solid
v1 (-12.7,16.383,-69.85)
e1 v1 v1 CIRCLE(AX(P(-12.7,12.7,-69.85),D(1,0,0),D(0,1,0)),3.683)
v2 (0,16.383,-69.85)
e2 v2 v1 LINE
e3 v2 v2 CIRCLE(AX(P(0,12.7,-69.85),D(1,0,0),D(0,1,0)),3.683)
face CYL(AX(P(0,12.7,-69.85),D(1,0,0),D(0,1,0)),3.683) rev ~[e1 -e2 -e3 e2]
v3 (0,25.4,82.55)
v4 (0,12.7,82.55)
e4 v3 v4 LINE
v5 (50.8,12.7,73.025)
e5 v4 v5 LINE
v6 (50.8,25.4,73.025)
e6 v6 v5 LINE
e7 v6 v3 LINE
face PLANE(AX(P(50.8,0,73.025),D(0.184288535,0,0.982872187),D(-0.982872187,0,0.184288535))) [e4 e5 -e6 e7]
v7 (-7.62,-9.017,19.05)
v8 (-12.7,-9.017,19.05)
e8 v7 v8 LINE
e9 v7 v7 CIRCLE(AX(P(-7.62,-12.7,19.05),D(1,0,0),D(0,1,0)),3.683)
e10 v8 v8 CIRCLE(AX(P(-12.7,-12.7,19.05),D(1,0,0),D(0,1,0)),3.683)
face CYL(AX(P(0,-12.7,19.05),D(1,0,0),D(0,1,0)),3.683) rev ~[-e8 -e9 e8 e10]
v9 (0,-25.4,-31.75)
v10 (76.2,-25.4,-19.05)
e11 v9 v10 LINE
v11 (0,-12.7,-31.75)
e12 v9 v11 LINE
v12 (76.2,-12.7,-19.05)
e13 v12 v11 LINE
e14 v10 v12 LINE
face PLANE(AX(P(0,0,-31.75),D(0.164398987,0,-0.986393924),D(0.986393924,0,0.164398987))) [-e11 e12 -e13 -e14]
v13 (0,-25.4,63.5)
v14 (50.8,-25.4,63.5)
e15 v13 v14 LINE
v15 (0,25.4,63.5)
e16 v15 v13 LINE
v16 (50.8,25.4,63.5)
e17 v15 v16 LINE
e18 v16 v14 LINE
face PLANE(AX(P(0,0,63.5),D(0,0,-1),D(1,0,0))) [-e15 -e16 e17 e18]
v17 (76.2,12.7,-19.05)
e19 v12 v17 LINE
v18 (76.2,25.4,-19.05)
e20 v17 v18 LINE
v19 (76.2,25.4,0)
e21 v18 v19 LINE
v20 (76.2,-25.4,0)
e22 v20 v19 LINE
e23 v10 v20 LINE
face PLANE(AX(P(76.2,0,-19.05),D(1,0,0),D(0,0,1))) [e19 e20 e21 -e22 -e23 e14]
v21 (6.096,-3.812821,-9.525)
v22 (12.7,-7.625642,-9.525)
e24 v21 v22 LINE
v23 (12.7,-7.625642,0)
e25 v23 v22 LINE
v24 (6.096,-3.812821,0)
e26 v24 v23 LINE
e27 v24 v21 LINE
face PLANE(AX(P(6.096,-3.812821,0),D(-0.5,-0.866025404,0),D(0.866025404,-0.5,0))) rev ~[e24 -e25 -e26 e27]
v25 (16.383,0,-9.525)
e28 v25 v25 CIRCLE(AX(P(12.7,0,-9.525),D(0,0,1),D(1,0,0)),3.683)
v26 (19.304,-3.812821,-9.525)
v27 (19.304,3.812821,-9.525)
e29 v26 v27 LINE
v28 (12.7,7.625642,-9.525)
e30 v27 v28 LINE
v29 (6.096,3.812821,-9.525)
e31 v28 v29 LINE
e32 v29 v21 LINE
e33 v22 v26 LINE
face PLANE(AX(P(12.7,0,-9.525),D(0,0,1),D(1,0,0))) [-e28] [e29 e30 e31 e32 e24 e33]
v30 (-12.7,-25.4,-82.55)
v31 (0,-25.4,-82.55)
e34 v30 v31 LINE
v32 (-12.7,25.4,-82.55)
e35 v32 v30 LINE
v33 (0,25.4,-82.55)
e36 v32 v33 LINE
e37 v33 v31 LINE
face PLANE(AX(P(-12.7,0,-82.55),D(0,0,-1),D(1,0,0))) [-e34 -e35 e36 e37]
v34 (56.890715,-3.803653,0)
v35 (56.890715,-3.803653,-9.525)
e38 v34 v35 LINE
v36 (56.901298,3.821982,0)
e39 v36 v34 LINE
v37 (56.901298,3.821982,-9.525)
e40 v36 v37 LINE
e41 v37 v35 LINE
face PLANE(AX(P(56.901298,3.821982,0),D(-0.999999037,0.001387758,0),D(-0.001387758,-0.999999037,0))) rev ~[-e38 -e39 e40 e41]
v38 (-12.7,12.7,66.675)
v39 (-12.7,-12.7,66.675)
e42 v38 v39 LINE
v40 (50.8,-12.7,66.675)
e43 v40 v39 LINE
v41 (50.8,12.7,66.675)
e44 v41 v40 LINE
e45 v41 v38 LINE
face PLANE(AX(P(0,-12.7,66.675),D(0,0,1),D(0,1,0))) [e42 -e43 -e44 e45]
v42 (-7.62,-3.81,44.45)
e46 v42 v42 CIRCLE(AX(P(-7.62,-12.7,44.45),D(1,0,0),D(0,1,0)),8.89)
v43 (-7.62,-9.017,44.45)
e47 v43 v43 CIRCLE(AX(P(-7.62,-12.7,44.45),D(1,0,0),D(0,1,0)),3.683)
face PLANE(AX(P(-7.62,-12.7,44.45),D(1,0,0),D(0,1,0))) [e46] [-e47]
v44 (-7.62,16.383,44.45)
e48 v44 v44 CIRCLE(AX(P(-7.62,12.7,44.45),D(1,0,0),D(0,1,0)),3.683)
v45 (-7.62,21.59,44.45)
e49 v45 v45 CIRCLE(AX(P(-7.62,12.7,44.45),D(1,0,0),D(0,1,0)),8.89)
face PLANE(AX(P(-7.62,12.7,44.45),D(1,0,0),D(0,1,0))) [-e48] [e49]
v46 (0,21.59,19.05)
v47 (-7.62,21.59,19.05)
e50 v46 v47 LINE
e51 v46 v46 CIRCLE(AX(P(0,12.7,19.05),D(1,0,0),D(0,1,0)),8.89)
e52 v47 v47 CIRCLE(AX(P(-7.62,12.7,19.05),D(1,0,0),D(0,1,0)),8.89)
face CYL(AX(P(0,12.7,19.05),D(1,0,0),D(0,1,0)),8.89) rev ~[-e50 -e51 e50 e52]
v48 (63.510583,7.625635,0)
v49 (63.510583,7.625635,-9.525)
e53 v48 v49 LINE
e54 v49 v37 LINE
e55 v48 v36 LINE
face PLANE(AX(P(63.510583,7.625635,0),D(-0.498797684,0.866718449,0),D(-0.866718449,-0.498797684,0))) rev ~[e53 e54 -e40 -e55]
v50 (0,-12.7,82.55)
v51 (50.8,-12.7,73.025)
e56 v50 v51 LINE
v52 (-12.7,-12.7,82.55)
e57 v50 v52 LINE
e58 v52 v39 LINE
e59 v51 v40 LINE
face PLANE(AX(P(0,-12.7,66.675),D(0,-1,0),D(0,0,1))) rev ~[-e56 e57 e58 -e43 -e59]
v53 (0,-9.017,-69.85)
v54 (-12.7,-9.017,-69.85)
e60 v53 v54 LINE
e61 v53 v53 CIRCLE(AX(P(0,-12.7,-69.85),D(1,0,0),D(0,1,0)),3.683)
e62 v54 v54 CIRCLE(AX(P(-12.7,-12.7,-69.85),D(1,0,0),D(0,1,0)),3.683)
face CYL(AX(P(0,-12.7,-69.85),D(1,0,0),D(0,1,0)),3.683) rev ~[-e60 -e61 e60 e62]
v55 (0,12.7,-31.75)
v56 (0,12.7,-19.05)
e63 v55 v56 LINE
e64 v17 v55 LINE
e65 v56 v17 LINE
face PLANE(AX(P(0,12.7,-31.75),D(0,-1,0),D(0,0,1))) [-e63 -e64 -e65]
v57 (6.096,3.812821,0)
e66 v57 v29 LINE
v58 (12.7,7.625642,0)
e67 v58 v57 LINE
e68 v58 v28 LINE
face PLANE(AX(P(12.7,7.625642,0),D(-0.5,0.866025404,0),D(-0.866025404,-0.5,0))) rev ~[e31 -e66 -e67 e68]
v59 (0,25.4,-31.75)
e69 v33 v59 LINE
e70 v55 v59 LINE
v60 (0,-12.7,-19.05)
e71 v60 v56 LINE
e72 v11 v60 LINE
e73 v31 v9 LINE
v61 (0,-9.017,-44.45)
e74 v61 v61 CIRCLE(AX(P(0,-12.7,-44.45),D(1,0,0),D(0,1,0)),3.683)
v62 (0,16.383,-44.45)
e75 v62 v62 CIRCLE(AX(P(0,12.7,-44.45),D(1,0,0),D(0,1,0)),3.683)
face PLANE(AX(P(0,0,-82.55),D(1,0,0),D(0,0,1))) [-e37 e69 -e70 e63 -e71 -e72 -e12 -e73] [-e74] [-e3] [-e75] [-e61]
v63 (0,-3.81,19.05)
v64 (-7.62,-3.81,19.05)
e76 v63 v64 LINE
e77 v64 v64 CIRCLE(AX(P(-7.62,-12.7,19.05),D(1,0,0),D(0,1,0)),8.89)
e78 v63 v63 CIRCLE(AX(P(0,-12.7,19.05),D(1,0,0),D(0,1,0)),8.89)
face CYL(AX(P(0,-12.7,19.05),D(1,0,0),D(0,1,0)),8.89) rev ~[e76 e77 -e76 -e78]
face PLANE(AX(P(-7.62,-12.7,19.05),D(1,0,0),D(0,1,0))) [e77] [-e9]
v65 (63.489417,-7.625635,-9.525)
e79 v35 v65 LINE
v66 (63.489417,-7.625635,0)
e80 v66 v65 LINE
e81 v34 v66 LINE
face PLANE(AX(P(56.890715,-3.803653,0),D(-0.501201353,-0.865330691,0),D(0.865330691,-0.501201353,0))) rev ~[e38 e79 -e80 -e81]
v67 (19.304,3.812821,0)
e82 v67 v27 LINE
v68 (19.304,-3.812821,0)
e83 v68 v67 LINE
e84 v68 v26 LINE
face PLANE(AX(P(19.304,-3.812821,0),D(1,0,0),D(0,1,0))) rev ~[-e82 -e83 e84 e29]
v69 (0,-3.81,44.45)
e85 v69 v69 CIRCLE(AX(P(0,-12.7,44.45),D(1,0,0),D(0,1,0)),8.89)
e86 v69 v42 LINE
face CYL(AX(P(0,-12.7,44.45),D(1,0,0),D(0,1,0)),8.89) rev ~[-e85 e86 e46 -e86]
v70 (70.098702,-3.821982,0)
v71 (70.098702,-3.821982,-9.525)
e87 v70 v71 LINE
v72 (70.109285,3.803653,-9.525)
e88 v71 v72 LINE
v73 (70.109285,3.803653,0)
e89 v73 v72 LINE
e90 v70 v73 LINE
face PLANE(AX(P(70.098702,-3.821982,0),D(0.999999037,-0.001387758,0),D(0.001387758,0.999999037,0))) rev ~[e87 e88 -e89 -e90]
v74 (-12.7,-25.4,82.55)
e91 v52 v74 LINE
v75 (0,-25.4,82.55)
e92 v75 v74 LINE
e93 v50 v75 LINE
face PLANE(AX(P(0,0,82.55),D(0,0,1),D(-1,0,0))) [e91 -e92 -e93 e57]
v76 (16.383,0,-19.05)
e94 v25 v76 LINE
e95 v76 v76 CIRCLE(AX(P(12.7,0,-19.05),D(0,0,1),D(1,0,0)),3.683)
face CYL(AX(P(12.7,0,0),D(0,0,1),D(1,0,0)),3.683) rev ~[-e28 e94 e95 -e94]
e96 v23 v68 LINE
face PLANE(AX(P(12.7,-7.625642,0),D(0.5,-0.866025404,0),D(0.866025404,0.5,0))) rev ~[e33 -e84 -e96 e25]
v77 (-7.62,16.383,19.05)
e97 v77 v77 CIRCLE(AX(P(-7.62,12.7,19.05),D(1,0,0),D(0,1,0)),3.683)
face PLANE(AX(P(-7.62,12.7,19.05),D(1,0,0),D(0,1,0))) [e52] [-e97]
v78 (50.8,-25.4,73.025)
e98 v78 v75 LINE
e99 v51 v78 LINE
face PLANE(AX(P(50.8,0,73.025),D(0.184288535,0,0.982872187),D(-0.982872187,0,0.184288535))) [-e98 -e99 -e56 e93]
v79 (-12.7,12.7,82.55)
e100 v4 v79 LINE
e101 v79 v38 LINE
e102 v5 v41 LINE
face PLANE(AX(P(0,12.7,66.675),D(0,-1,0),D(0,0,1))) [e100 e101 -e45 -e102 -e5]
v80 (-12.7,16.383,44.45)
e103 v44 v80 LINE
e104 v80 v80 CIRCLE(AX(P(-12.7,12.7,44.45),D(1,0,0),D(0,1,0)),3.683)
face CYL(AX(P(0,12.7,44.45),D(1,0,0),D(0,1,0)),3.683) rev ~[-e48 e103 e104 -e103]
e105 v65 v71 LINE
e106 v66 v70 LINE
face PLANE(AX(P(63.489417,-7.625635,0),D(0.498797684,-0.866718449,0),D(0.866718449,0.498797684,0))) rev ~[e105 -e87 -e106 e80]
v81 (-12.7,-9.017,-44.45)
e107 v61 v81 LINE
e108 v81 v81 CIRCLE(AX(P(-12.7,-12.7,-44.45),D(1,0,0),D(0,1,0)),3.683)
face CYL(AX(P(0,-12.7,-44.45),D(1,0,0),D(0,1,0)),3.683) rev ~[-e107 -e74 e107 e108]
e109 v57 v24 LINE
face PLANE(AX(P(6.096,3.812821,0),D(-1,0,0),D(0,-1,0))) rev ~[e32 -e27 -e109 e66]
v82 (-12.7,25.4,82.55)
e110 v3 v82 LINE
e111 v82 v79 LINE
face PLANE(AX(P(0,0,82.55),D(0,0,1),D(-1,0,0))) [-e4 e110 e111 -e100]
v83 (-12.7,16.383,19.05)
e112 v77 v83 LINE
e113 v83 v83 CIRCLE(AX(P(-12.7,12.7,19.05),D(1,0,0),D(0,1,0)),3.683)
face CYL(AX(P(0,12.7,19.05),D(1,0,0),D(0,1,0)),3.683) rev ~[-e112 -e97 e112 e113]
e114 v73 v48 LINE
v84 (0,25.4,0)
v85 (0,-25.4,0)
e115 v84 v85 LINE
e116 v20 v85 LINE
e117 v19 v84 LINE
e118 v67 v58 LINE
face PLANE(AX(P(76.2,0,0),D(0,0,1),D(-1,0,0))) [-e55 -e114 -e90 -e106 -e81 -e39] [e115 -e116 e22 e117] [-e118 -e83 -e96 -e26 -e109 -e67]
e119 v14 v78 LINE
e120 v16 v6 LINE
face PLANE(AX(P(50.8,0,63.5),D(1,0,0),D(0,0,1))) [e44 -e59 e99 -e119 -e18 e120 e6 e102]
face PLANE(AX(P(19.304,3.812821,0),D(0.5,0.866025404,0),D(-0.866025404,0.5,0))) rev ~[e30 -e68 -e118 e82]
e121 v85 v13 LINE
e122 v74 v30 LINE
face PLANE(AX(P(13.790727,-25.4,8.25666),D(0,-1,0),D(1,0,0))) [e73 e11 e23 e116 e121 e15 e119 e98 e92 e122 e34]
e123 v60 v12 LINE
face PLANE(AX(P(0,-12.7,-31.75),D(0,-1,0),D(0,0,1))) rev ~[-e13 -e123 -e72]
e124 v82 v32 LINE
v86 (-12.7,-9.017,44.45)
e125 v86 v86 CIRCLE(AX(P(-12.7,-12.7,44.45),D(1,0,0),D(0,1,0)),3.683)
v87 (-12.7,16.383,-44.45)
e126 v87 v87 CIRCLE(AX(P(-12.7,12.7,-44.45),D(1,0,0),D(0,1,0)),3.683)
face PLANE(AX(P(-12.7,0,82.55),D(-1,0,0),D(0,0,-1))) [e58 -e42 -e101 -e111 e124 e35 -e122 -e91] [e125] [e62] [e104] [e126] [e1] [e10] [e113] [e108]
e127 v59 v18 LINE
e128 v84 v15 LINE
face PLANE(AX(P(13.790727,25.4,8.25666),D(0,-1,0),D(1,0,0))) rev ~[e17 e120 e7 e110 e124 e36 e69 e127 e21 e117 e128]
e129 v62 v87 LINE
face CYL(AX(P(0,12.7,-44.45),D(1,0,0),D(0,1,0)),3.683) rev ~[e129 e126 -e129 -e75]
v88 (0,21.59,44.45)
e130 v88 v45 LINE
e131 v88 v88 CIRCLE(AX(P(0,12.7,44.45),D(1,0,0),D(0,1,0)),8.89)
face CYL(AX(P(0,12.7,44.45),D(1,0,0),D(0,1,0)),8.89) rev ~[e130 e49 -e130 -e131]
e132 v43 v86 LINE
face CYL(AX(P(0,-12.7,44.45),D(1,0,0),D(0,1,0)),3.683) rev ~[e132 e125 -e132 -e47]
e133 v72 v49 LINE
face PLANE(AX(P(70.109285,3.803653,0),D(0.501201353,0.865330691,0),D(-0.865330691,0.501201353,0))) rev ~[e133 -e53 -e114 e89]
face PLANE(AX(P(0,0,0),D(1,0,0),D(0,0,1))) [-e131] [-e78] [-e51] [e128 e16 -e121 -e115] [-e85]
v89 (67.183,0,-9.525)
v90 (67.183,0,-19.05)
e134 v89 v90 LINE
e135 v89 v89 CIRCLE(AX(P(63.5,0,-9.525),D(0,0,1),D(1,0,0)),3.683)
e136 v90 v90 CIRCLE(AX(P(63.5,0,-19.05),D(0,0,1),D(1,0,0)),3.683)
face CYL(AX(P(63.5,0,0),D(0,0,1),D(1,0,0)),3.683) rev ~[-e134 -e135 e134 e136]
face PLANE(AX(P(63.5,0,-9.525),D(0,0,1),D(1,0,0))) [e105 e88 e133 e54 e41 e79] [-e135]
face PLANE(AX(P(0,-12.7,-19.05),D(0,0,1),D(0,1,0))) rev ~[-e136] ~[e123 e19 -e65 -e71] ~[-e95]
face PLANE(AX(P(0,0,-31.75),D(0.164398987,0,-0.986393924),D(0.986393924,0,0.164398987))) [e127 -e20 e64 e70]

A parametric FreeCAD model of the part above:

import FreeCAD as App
import Part
import Sketcher

V = App.Vector
Q = App.Units.Quantity

doc = App.newDocument("Part")
body = doc.addObject("PartDesign::Body", "Body")

# Sketch on XZ plane
sketch1 = body.newObject("Sketcher::SketchObject", "Sketch")
sketch1.AttachmentSupport = (doc.getObject("XZ_Plane"), [""])
sketch1.MapMode = "FlatFace"
sketch1.addGeometry([
    Part.LineSegment(V(76, 0, 0), V(0, 0, 0)),  # 0
    Part.LineSegment(V(0, 0, 0), V(0, 64, 0)),  # 1
    Part.LineSegment(V(0, 64, 0), V(51, 64, 0)),  # 2
    Part.LineSegment(V(51, 64, 0), V(51, 73, 0)),  # 3
    Part.LineSegment(V(51, 73, 0), V(0, 83, 0)),  # 4
    Part.LineSegment(V(0, 83, 0), V(-13, 83, 0)),  # 5
    Part.LineSegment(V(-13, 83, 0), V(-13, -83, 0)),  # 6
    Part.LineSegment(V(-13, -83, 0), V(0, -83, 0)),  # 7
    Part.LineSegment(V(0, -83, 0), V(0, -32, 0)),  # 8
    Part.LineSegment(V(0, -32, 0), V(76, -19, 0)),  # 9
    Part.LineSegment(V(76, -19, 0), V(76, 0, 0)),  # 10
], False)
sketch1.addConstraint([
    Sketcher.Constraint("Coincident", 0, 2, 1, 1),
    Sketcher.Constraint("Coincident", 1, 2, 2, 1),
    Sketcher.Constraint("Coincident", 2, 2, 3, 1),
    Sketcher.Constraint("Coincident", 3, 2, 4, 1),
    Sketcher.Constraint("Coincident", 4, 2, 5, 1),
    Sketcher.Constraint("Coincident", 5, 2, 6, 1),
    Sketcher.Constraint("Coincident", 6, 2, 7, 1),
    Sketcher.Constraint("Coincident", 7, 2, 8, 1),
    Sketcher.Constraint("Coincident", 8, 2, 9, 1),
    Sketcher.Constraint("Coincident", 9, 2, 10, 1),
    Sketcher.Constraint("Coincident", 10, 2, 0, 1),
    Sketcher.Constraint("Horizontal", 0),
    Sketcher.Constraint("Vertical", 1),
    Sketcher.Constraint("Horizontal", 2),
    Sketcher.Constraint("Vertical", 3),
    Sketcher.Constraint("Horizontal", 5),
    Sketcher.Constraint("Vertical", 6),
    Sketcher.Constraint("Horizontal", 7),
    Sketcher.Constraint("Vertical", 8),
    Sketcher.Constraint("Vertical", 10),
    Sketcher.Constraint("Coincident", 0, 2, -1, 1),
    Sketcher.Constraint("Symmetric", 4, 2, 7, 2, -1, 1),
    Sketcher.Constraint("PointOnObject", 4, 2, -2),
    Sketcher.Constraint("Equal", 2, 8),
    Sketcher.Constraint("DistanceX", 0, 2, 0, 1, Q("3 in")),
    Sketcher.Constraint("DistanceX", 2, 1, 2, 2, Q("2 in")),
    Sketcher.Constraint("DistanceX", 5, 2, 5, 1, Q("0.5 in")),
    Sketcher.Constraint("DistanceY", 1, 1, 1, 2, Q("2.5 in")),
    Sketcher.Constraint("DistanceY", 6, 2, 6, 1, Q("6.5 in")),
    Sketcher.Constraint("DistanceY", 10, 1, 10, 2, Q("0.75 in")),
    Sketcher.Constraint("DistanceY", 3, 1, 3, 2, Q("0.375 in")),
])
pad1 = body.newObject("PartDesign::Pad", "Pad")
pad1.Profile = sketch1
pad1.Length = Q("2 in")
pad1.Midplane = True

# Sketch on YZ plane
sketch2 = body.newObject("Sketcher::SketchObject", "Sketch001")
sketch2.AttachmentSupport = (doc.getObject("YZ_Plane"), [""])
sketch2.MapMode = "FlatFace"
sketch2.addGeometry([
    Part.LineSegment(V(-13, 83, 0), V(-13, 67, 0)),
    Part.LineSegment(V(-13, 67, 0), V(13, 67, 0)),
    Part.LineSegment(V(13, 67, 0), V(13, 83, 0)),
    Part.LineSegment(V(13, 83, 0), V(-13, 83, 0)),
], False)
sketch2.addConstraint([
    Sketcher.Constraint("Coincident", 0, 2, 1, 1),
    Sketcher.Constraint("Coincident", 1, 2, 2, 1),
    Sketcher.Constraint("Coincident", 2, 2, 3, 1),
    Sketcher.Constraint("Coincident", 3, 2, 0, 1),
    Sketcher.Constraint("Vertical", 0),
    Sketcher.Constraint("Horizontal", 1),
    Sketcher.Constraint("Vertical", 2),
    Sketcher.Constraint("Horizontal", 3),
    Sketcher.Constraint("DistanceX", 1, 1, 1, 2, Q("1 in")),
    Sketcher.Constraint("DistanceX", 0, 2, -1, 1, Q("0.5 in")),
    Sketcher.Constraint("DistanceY", 0, 2, 0, 1, Q("0.625 in")),
    Sketcher.Constraint("DistanceY", -1, 1, 2, 2, Q("3.25 in")),
])
pocket1 = body.newObject("PartDesign::Pocket", "Pocket")
pocket1.Profile = sketch2
pocket1.Type = "ThroughAll"
pocket1.Midplane = True

# Sketch on XY plane
sketch3 = body.newObject("Sketcher::SketchObject", "Sketch002")
sketch3.AttachmentSupport = (doc.getObject("XY_Plane"), [""])
sketch3.MapMode = "FlatFace"
sketch3.addGeometry([
    Part.LineSegment(V(19, -4, 0), V(19, 4, 0)),  # 0
    Part.LineSegment(V(19, 4, 0), V(13, 8, 0)),  # 1
    Part.LineSegment(V(13, 8, 0), V(6, 4, 0)),  # 2
    Part.LineSegment(V(6, 4, 0), V(6, -4, 0)),  # 3
    Part.LineSegment(V(6, -4, 0), V(13, -8, 0)),  # 4
    Part.LineSegment(V(13, -8, 0), V(19, -4, 0)),  # 5
    Part.LineSegment(V(70, 4, 0), V(64, 8, 0)),  # 6
    Part.LineSegment(V(64, 8, 0), V(57, 4, 0)),  # 7
    Part.LineSegment(V(57, 4, 0), V(57, -4, 0)),  # 8
    Part.LineSegment(V(57, -4, 0), V(63, -8, 0)),  # 9
    Part.LineSegment(V(63, -8, 0), V(70, -4, 0)),  # 10
    Part.LineSegment(V(70, -4, 0), V(70, 4, 0)),  # 11
], False)
sketch3.addConstraint([
    Sketcher.Constraint("Coincident", 0, 2, 1, 1),
    Sketcher.Constraint("Coincident", 1, 2, 2, 1),
    Sketcher.Constraint("Coincident", 2, 2, 3, 1),
    Sketcher.Constraint("Coincident", 3, 2, 4, 1),
    Sketcher.Constraint("Coincident", 4, 2, 5, 1),
    Sketcher.Constraint("Coincident", 5, 2, 0, 1),
    Sketcher.Constraint("Coincident", 6, 2, 7, 1),
    Sketcher.Constraint("Coincident", 7, 2, 8, 1),
    Sketcher.Constraint("Coincident", 8, 2, 9, 1),
    Sketcher.Constraint("Coincident", 9, 2, 10, 1),
    Sketcher.Constraint("Coincident", 10, 2, 11, 1),
    Sketcher.Constraint("Coincident", 11, 2, 6, 1),
    Sketcher.Constraint("Vertical", 0),
    Sketcher.Constraint("Vertical", 3),
    Sketcher.Constraint("Symmetric", 1, 2, 4, 2, -1),
    Sketcher.Constraint("Parallel", 1, 4),
    Sketcher.Constraint("Parallel", 2, 5),
    Sketcher.Constraint("Parallel", 6, 9),
    Sketcher.Constraint("Parallel", 7, 10),
    Sketcher.Constraint("Parallel", 8, 11),
    Sketcher.Constraint("Horizontal", 0, 2, 2, 2),
    Sketcher.Constraint("Horizontal", 3, 2, 5, 2),
    Sketcher.Constraint("Equal", 5, 6),
    Sketcher.Constraint("Equal", 6, 7),
    Sketcher.Constraint("Equal", 7, 8),
    Sketcher.Constraint("Equal", 8, 9),
    Sketcher.Constraint("Angle", 1, Q("150 deg")),
    Sketcher.Constraint("DistanceX", -1, 1, 1, 2, Q("0.5 in")),
    Sketcher.Constraint("DistanceX", -1, 1, 0, 2, Q("0.76 in")),
    Sketcher.Constraint("DistanceY", 0, 1, 0, 2, Q("7.625642 mm")),
    Sketcher.Constraint("DistanceY", 0, 2, 7, 2, Q("0.009161 mm")),
    Sketcher.Constraint("DistanceX", 7, 2, 9, 2, Q("6.58812 mm")),
    Sketcher.Constraint("DistanceY", 9, 2, 6, 2, Q("15.25127 mm")),
    Sketcher.Constraint("DistanceY", 10, 2, 8, 2, Q("0.01833 mm")),
    Sketcher.Constraint("DistanceX", -1, 1, 6, 2, Q("63.510583 mm")),
])
pocket2 = body.newObject("PartDesign::Pocket", "Pocket001")
pocket2.Profile = sketch3
pocket2.Length = Q("0.375 in")

# Sketch on XY plane
sketch4 = body.newObject("Sketcher::SketchObject", "Sketch003")
sketch4.AttachmentSupport = (doc.getObject("XY_Plane"), [""])
sketch4.MapMode = "FlatFace"
sketch4.addGeometry([
    Part.Circle(V(12.7, 0, 0), V(0, 0, 1), 3.7),
    Part.Circle(V(63.5, 0, 0), V(0, 0, 1), 3.7),
], False)
sketch4.addConstraint([
    Sketcher.Constraint("Equal", 0, 1),
    Sketcher.Constraint("PointOnObject", 0, 3, -1),
    Sketcher.Constraint("PointOnObject", 1, 3, -1),
    Sketcher.Constraint("Diameter", 0, Q("0.29 in")),
    Sketcher.Constraint("DistanceX", 0, 3, 1, 3, Q("2 in")),
    Sketcher.Constraint("DistanceX", -1, 1, 0, 3, Q("0.5 in")),
])
pocket3 = body.newObject("PartDesign::Pocket", "Pocket002")
pocket3.Profile = sketch4
pocket3.Type = "ThroughAll"

# Sketch on YZ plane
sketch5 = body.newObject("Sketcher::SketchObject", "Sketch004")
sketch5.AttachmentSupport = (doc.getObject("YZ_Plane"), [""])
sketch5.MapMode = "FlatFace"
sketch5.addGeometry([
    Part.LineSegment(V(-13, -19, 0), V(-13, -32, 0)),
    Part.LineSegment(V(-13, -32, 0), V(13, -32, 0)),
    Part.LineSegment(V(13, -32, 0), V(13, -19, 0)),
    Part.LineSegment(V(13, -19, 0), V(-13, -19, 0)),
], False)
sketch5.addConstraint([
    Sketcher.Constraint("Coincident", 0, 2, 1, 1),
    Sketcher.Constraint("Coincident", 1, 2, 2, 1),
    Sketcher.Constraint("Coincident", 2, 2, 3, 1),
    Sketcher.Constraint("Coincident", 3, 2, 0, 1),
    Sketcher.Constraint("Vertical", 0),
    Sketcher.Constraint("Horizontal", 1),
    Sketcher.Constraint("Vertical", 2),
    Sketcher.Constraint("Horizontal", 3),
    Sketcher.Constraint("DistanceX", 1, 1, 1, 2, Q("1 in")),
    Sketcher.Constraint("DistanceY", 0, 2, 0, 1, Q("0.5 in")),
    Sketcher.Constraint("DistanceX", 0, 2, -1, 1, Q("0.5 in")),
    Sketcher.Constraint("DistanceY", 0, 2, -1, 1, Q("1.25 in")),
])
pocket4 = body.newObject("PartDesign::Pocket", "Pocket003")
pocket4.Profile = sketch5
pocket4.Type = "ThroughAll"
pocket4.Reversed = True

# Sketch on YZ plane
sketch6 = body.newObject("Sketcher::SketchObject", "Sketch005")
sketch6.AttachmentSupport = (doc.getObject("YZ_Plane"), [""])
sketch6.MapMode = "FlatFace"
sketch6.addGeometry([
    Part.Circle(V(-12.7, -44.5, 0), V(0, 0, 1), 3.7),  # 0
    Part.Circle(V(12.7, -44.5, 0), V(0, 0, 1), 3.7),  # 1
    Part.Circle(V(-12.7, -69.8, 0), V(0, 0, 1), 3.7),  # 2
    Part.Circle(V(12.7, -69.8, 0), V(0, 0, 1), 3.7),  # 3
    Part.Circle(V(-12.7, 19.1, 0), V(0, 0, 1), 3.7),  # 4
    Part.Circle(V(12.7, 19.1, 0), V(0, 0, 1), 3.7),  # 5
    Part.Circle(V(-12.7, 44.5, 0), V(0, 0, 1), 3.7),  # 6
    Part.Circle(V(12.7, 44.5, 0), V(0, 0, 1), 3.7),  # 7
], False)
sketch6.addConstraint([
    Sketcher.Constraint("Equal", 0, 1),
    Sketcher.Constraint("Equal", 1, 2),
    Sketcher.Constraint("Equal", 2, 3),
    Sketcher.Constraint("Equal", 3, 4),
    Sketcher.Constraint("Equal", 4, 5),
    Sketcher.Constraint("Equal", 5, 6),
    Sketcher.Constraint("Equal", 6, 7),
    Sketcher.Constraint("Symmetric", 1, 3, 6, 3, -1, 1),
    Sketcher.Constraint("Symmetric", 0, 3, 7, 3, -1, 1),
    Sketcher.Constraint("Symmetric", 0, 3, 1, 3, -2),
    Sketcher.Constraint("Symmetric", 2, 3, 3, 3, -2),
    Sketcher.Constraint("Symmetric", 4, 3, 5, 3, -2),
    Sketcher.Constraint("Vertical", 0, 3, 2, 3),
    Sketcher.Constraint("Vertical", 2, 3, 4, 3),
    Sketcher.Constraint("Diameter", 0, Q("0.29 in")),
    Sketcher.Constraint("DistanceX", 0, 3, 1, 3, Q("1 in")),
    Sketcher.Constraint("DistanceY", 2, 3, 0, 3, Q("1 in")),
    Sketcher.Constraint("DistanceY", 4, 3, 6, 3, Q("1 in")),
    Sketcher.Constraint("DistanceY", 0, 3, 4, 3, Q("2.5 in")),
])
pocket5 = body.newObject("PartDesign::Pocket", "Pocket004")
pocket5.Profile = sketch6
pocket5.Type = "ThroughAll"

# Sketch on YZ plane
sketch7 = body.newObject("Sketcher::SketchObject", "Sketch006")
sketch7.AttachmentSupport = (doc.getObject("YZ_Plane"), [""])
sketch7.MapMode = "FlatFace"
sketch7.addGeometry([
    Part.Circle(V(-13, 44, 0), V(0, 0, 1), 9),
    Part.Circle(V(13, 44, 0), V(0, 0, 1), 9),
    Part.Circle(V(-13, 19, 0), V(0, 0, 1), 9),
    Part.Circle(V(13, 19, 0), V(0, 0, 1), 9),
], False)
sketch7.addConstraint([
    Sketcher.Constraint("Equal", 0, 1),
    Sketcher.Constraint("Equal", 1, 2),
    Sketcher.Constraint("Equal", 2, 3),
    Sketcher.Constraint("Symmetric", 0, 3, 1, 3, -2),
    Sketcher.Constraint("Symmetric", 2, 3, 3, 3, -2),
    Sketcher.Constraint("Vertical", 0, 3, 2, 3),
    Sketcher.Constraint("Diameter", 0, Q("0.7 in")),
    Sketcher.Constraint("DistanceX", 0, 3, 1, 3, Q("1 in")),
    Sketcher.Constraint("DistanceY", 2, 3, 0, 3, Q("1 in")),
    Sketcher.Constraint("DistanceY", -1, 1, 0, 3, Q("1.75 in")),
])
pocket6 = body.newObject("PartDesign::Pocket", "Pocket005")
pocket6.Profile = sketch7
pocket6.Length = Q("0.3 in")

doc.recompute()
